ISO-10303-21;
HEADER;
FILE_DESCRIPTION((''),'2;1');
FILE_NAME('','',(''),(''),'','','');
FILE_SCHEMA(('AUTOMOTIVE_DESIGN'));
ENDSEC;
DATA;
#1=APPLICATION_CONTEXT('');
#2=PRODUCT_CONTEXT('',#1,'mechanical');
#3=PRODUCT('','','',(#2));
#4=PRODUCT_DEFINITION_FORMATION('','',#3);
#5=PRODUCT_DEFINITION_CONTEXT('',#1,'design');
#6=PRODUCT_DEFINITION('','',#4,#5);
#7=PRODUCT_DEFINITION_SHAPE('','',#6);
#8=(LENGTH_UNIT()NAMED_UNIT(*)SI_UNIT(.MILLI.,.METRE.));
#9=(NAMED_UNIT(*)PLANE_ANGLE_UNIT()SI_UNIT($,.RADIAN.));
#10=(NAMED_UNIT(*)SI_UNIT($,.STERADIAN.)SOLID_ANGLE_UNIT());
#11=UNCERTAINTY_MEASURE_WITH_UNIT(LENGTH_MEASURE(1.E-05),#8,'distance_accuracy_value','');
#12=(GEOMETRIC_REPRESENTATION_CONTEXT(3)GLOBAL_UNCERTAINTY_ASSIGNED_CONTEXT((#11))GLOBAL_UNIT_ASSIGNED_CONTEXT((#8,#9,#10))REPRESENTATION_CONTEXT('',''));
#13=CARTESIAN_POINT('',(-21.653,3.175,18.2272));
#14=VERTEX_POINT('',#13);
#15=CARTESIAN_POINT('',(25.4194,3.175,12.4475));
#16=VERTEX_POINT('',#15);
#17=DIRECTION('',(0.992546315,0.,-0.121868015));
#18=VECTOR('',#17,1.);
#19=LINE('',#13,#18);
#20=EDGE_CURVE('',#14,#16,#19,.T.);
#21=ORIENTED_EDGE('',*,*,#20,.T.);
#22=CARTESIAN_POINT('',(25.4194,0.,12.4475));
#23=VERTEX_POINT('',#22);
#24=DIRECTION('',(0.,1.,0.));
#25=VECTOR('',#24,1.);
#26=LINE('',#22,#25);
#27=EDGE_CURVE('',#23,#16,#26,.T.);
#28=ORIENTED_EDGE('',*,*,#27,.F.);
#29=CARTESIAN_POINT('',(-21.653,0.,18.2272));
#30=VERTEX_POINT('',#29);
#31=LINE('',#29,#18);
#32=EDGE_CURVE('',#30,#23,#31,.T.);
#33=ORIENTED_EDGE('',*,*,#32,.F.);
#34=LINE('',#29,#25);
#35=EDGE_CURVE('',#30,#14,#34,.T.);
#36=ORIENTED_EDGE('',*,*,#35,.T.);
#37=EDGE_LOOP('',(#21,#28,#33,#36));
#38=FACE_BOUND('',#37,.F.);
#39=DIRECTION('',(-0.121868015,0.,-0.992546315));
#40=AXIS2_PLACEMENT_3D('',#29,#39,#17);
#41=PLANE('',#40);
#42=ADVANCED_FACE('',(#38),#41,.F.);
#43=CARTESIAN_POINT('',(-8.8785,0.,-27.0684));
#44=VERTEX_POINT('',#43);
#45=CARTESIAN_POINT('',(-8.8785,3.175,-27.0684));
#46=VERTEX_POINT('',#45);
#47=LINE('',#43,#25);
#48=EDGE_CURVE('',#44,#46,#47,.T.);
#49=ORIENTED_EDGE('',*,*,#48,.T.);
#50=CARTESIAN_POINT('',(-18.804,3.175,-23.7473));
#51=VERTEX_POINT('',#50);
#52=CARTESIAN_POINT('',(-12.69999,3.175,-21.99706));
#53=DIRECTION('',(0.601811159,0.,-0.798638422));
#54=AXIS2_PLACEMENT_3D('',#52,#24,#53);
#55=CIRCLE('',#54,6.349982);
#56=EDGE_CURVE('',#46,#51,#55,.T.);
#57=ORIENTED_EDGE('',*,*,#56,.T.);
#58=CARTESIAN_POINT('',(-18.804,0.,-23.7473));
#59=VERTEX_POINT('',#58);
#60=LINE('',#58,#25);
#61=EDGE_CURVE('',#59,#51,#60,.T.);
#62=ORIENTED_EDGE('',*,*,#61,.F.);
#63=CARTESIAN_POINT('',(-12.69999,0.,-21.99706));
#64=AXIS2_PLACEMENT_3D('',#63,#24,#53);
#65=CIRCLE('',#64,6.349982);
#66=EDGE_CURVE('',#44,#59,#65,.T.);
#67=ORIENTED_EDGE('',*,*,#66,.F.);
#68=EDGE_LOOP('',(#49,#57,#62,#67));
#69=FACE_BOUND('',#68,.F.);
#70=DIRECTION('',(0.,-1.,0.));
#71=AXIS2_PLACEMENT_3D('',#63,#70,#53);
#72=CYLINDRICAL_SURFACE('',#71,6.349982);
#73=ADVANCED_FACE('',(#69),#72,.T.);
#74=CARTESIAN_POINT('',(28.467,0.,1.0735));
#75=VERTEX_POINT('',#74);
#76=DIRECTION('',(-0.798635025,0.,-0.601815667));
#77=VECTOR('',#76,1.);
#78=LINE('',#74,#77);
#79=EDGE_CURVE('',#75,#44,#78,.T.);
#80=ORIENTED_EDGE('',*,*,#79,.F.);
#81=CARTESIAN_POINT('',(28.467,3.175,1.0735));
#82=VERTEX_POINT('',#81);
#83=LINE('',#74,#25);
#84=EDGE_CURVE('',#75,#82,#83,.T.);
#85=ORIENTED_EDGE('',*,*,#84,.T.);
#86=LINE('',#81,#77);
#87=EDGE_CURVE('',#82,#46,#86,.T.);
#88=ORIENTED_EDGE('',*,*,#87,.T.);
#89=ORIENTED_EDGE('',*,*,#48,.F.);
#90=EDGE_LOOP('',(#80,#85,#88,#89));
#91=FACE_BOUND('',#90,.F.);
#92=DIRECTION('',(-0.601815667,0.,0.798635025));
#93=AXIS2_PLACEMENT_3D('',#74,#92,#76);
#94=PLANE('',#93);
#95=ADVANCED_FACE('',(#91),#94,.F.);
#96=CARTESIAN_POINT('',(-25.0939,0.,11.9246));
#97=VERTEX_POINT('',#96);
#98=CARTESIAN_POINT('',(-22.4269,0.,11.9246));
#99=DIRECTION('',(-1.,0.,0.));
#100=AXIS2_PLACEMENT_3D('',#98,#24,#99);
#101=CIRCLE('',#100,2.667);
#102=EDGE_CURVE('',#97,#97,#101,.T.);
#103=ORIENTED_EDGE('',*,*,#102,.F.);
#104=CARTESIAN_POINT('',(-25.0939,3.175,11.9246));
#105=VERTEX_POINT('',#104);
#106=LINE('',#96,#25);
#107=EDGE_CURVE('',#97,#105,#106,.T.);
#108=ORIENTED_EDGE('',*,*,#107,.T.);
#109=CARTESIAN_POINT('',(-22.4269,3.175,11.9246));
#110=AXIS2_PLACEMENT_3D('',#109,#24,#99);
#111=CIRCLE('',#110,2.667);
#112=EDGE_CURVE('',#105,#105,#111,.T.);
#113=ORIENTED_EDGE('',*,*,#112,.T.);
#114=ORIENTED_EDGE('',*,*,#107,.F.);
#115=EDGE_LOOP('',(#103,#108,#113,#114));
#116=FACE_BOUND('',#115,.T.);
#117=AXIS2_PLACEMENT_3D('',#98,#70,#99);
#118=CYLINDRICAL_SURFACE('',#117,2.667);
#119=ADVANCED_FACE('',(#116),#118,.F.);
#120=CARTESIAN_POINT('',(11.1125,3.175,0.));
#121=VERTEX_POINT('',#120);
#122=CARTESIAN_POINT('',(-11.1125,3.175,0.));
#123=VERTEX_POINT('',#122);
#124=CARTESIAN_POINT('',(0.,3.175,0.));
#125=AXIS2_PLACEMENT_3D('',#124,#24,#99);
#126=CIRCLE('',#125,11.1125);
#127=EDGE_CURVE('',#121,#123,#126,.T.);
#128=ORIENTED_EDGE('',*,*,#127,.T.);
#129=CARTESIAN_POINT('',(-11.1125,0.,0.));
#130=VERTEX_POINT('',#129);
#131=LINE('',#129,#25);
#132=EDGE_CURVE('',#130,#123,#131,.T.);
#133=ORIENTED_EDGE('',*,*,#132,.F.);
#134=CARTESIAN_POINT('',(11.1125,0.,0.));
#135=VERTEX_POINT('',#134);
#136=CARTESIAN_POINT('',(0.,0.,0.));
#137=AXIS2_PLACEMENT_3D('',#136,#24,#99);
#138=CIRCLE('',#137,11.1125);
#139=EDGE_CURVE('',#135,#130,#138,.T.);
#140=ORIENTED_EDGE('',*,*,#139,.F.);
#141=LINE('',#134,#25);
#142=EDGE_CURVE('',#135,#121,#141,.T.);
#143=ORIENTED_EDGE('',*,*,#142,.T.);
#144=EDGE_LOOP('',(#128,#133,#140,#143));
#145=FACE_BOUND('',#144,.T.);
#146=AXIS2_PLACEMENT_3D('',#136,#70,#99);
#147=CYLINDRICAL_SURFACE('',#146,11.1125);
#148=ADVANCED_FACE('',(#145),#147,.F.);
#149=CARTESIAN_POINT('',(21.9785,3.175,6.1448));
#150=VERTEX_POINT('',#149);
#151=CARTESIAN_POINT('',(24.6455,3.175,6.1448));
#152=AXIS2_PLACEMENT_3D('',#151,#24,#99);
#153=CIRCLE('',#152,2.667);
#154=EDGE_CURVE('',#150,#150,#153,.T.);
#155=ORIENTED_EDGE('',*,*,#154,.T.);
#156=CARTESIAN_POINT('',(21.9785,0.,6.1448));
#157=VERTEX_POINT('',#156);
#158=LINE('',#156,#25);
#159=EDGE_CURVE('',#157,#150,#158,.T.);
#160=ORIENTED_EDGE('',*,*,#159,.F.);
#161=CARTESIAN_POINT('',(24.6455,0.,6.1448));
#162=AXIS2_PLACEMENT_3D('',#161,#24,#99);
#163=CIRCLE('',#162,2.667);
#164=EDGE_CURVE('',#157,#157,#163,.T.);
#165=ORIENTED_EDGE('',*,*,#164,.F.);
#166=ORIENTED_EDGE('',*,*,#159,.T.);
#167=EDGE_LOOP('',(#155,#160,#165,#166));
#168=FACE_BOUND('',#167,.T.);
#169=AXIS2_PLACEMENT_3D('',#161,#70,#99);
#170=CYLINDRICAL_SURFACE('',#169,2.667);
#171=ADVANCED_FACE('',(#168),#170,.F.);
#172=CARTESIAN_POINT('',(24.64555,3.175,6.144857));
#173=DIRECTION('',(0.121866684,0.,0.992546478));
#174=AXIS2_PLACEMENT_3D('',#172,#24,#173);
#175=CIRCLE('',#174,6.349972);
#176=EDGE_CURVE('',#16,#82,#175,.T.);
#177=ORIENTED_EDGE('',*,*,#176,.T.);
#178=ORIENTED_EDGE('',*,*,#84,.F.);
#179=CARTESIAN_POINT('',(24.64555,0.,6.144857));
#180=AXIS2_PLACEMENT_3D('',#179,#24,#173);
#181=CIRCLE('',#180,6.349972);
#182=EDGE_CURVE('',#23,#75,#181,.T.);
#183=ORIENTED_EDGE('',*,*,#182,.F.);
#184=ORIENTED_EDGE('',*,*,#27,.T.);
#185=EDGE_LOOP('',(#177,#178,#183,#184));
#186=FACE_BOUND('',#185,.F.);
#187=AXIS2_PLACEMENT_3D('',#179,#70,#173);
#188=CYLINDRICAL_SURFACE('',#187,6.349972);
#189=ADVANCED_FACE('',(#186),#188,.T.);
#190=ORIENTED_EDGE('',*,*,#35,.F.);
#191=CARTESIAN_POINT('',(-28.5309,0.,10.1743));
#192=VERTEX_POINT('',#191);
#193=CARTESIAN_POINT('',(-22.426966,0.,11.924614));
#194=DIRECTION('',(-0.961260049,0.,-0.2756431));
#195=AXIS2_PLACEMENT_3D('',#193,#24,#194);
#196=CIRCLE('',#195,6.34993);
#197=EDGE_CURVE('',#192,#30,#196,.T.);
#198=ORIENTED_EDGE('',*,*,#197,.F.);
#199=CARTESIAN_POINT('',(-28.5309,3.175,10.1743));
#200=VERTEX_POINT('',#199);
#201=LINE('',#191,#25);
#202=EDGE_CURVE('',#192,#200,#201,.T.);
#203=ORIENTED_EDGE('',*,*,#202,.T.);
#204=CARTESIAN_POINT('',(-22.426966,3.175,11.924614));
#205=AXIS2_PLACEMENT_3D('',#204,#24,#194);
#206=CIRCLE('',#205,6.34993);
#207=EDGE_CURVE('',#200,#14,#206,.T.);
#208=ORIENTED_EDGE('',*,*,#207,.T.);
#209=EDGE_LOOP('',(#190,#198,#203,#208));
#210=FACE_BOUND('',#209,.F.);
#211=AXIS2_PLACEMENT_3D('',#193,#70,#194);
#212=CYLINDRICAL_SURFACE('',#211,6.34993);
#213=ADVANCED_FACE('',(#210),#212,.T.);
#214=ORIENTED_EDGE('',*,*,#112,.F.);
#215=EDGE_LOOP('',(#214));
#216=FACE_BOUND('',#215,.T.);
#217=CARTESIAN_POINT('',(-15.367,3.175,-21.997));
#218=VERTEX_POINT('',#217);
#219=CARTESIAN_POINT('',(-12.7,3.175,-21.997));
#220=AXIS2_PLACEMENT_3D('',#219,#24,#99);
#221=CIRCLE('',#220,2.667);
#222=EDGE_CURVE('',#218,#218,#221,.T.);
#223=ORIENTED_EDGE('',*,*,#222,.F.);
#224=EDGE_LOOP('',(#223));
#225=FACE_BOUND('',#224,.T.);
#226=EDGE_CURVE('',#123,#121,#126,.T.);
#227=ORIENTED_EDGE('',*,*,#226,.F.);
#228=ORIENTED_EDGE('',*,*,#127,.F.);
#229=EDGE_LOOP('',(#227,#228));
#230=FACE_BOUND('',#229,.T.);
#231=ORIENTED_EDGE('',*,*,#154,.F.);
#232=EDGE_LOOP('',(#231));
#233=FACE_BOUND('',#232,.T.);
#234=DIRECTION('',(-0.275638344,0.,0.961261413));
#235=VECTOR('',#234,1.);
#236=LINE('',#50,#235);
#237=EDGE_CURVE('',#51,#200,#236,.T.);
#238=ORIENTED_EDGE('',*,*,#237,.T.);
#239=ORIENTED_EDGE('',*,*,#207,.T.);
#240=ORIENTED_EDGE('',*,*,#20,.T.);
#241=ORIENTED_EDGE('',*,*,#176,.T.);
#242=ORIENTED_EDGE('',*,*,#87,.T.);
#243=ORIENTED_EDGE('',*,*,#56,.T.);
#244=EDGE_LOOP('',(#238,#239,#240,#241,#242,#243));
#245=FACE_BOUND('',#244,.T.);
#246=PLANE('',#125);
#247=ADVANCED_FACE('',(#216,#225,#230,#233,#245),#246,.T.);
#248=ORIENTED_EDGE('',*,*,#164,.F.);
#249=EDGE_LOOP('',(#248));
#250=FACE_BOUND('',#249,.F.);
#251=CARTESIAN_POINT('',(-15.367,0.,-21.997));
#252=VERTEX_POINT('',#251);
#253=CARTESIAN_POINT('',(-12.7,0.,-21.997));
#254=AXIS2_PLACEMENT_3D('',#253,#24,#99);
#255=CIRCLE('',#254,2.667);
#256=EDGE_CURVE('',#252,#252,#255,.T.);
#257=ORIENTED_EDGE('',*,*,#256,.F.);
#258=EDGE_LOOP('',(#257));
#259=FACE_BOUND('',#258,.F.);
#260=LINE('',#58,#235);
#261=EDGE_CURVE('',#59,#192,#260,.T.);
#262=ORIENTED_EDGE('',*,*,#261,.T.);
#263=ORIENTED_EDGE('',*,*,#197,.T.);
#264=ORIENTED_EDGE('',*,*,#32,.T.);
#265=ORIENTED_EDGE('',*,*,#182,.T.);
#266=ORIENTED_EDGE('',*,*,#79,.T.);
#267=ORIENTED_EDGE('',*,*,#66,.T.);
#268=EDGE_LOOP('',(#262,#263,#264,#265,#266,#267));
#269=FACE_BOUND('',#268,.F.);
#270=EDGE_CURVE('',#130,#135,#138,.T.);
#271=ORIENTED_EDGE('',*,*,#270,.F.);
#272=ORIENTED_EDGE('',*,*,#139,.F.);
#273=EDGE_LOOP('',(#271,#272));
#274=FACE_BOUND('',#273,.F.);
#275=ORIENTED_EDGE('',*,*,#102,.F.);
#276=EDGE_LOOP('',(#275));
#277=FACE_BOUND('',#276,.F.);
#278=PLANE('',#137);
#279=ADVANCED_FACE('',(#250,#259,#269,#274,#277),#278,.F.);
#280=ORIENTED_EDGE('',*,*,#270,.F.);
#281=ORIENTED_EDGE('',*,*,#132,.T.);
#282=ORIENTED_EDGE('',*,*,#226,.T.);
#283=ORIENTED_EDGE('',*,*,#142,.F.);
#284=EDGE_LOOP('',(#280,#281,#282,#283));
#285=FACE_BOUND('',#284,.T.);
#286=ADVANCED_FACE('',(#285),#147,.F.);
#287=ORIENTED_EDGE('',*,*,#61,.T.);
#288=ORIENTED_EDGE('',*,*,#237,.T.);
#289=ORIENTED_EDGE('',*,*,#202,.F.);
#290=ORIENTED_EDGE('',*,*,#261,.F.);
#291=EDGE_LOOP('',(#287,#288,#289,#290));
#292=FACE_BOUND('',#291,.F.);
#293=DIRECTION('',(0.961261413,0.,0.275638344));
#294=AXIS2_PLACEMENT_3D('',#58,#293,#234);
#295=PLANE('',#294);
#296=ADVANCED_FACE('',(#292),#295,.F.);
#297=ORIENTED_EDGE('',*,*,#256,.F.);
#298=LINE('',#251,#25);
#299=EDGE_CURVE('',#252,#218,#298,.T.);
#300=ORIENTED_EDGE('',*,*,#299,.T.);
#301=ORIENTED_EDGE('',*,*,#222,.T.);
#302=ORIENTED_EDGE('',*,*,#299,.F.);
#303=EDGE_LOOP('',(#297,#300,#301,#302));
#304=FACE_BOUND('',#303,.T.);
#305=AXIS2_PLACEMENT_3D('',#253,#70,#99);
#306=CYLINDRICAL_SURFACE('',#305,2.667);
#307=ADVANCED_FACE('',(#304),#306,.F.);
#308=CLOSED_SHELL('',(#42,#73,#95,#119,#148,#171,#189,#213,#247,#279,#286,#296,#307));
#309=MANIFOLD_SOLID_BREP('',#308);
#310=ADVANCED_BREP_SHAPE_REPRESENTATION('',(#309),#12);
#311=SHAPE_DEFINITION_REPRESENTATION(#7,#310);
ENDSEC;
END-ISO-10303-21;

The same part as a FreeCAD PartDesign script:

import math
import FreeCAD as App
import Part
import Sketcher
from FreeCAD import Vector
Q = App.Units.Quantity

doc = App.newDocument("Part")
params = doc.addObject("Spreadsheet::Sheet", "Params")
for row, (alias, value) in enumerate([
    ("sketch1_diameter", "0.21 in"),
    ("sketch1_radius", "0.25 in"),
    ("sketch1_diameter2", "0.875 in"),
    ("sketch1_length", "1.841 in"),
    ("pad1_length", "0.125 in"),
], start=1):
    params.set(f"A{row}", alias)
    params.set(f"B{row}", "=" + value)
    params.setAlias(f"B{row}", alias)

body = doc.addObject("PartDesign::Body", "Body")

sketch1 = doc.addObject("Sketcher::SketchObject", "Sketch")
body.addObject(sketch1)
sketch1.AttachmentSupport = (doc.XZ_Plane, [""])
sketch1.MapMode = "FlatFace"
sketch1.addGeometry([
    Part.LineSegment(Vector(-18.8, -23.7, 0), Vector(-28.5, 10.2, 0)),
    Part.ArcOfCircle(Part.Circle(Vector(-22.4, 11.9, 0), Vector(0, 0, 1), 6.3), math.radians(83), math.radians(196)),
    Part.LineSegment(Vector(-21.7, 18.2, 0), Vector(25.4, 12.4, 0)),
    Part.ArcOfCircle(Part.Circle(Vector(24.6, 6.1, 0), Vector(0, 0, 1), 6.4), math.radians(-53), math.radians(83)),
    Part.LineSegment(Vector(28.5, 1.1, 0), Vector(-8.9, -27.1, 0)),
    Part.ArcOfCircle(Part.Circle(Vector(-12.7, -22, 0), Vector(0, 0, 1), 6.4), math.radians(-164), math.radians(-53)),
    Part.Circle(Vector(-12.7, -22, 0), Vector(0, 0, 1), 2.7),
    Part.Circle(Vector(24.6, 6.1, 0), Vector(0, 0, 1), 2.7),
    Part.Circle(Vector(0, 0, 0), Vector(0, 0, 1), 11.1),
    Part.Circle(Vector(-22.4, 11.9, 0), Vector(0, 0, 1), 2.7),
], False)
sketch1.addConstraint([
    Sketcher.Constraint("Tangent", 0, 2, 1, 2),
    Sketcher.Constraint("Tangent", 1, 1, 2, 1),
    Sketcher.Constraint("Tangent", 2, 2, 3, 2),
    Sketcher.Constraint("Tangent", 3, 1, 4, 1),
    Sketcher.Constraint("Tangent", 4, 2, 5, 2),
    Sketcher.Constraint("Tangent", 5, 1, 0, 1),
    Sketcher.Constraint("Coincident", 8, 3, -1, 1),
    Sketcher.Constraint("Coincident", 6, 3, 5, 3),
    Sketcher.Constraint("Coincident", 7, 3, 3, 3),
    Sketcher.Constraint("Coincident", 9, 3, 1, 3),
    Sketcher.Constraint("Equal", 1, 3),
    Sketcher.Constraint("Equal", 3, 5),
    Sketcher.Constraint("Equal", 6, 7),
    Sketcher.Constraint("Equal", 7, 9),
    Sketcher.Constraint("Diameter", 6, Q("0.21 in")),
    Sketcher.Constraint("Radius", 1, Q("0.25 in")),
    Sketcher.Constraint("Diameter", 8, Q("0.875 in")),
    Sketcher.Constraint("Angle", 0, Q("106 deg")),
    Sketcher.Constraint("Angle", 2, Q("-7 deg")),
    Sketcher.Constraint("Angle", 4, Q("-143 deg")),
    Sketcher.Constraint("DistanceX", 5, 3, -1, 1, Q("0.5 in")),
    Sketcher.Constraint("Distance", 4, Q("1.841 in")),
    Sketcher.Constraint("DistanceY", -1, 1, 1, 1, Q("0.7176 in")),
])
sketch1.setExpression("Constraints[14]", "Params.sketch1_diameter")
sketch1.setExpression("Constraints[15]", "Params.sketch1_radius")
sketch1.setExpression("Constraints[16]", "Params.sketch1_diameter2")
sketch1.setExpression("Constraints[21]", "Params.sketch1_length")
pad1 = doc.addObject("PartDesign::Pad", "Pad")
body.addObject(pad1)
pad1.Profile = sketch1
pad1.setExpression("Length", "Params.pad1_length")
pad1.Reversed = True

doc.recompute()
